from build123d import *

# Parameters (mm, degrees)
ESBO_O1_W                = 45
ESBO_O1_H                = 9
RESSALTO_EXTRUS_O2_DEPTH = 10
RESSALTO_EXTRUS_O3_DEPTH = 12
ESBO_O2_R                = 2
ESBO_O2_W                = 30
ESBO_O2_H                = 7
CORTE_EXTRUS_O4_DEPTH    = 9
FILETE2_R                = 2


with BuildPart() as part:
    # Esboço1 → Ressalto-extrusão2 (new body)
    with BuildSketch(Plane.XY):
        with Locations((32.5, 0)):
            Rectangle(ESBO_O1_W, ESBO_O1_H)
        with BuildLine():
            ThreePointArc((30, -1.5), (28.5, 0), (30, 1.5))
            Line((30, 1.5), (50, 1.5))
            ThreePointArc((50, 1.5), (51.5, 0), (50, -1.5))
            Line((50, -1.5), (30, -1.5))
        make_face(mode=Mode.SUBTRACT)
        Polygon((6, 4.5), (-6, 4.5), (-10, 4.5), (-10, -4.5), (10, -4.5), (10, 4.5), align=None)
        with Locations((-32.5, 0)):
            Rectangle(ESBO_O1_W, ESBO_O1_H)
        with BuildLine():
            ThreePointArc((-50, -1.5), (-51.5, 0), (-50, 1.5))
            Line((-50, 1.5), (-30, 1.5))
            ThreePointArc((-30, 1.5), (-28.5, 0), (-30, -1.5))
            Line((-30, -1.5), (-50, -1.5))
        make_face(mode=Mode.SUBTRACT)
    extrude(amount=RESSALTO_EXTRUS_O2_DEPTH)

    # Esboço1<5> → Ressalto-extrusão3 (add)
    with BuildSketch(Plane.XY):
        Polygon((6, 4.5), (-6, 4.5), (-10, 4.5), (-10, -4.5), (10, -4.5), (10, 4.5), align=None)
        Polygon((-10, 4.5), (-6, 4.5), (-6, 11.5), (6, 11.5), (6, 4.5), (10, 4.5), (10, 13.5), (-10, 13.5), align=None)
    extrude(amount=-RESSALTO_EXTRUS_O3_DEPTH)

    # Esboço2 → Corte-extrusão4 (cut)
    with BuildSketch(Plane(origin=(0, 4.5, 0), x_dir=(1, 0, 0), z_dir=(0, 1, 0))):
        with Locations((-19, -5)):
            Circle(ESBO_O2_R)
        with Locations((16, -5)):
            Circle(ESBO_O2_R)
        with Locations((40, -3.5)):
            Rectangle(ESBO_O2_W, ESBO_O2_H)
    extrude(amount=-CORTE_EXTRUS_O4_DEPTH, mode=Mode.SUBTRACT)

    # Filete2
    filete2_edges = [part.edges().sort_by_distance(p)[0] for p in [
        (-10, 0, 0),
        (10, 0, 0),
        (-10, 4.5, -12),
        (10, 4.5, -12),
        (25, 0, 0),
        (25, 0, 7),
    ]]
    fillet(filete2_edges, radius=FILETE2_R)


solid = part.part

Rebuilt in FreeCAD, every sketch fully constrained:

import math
import FreeCAD as App
import Part
import Sketcher
from FreeCAD import Vector
Q = App.Units.Quantity


def edges_at(feature, points):
    """Names of the edges that pass closest to the given points."""
    edges = feature.Shape.Edges
    near = lambda p: min(range(len(edges)), key=lambda i: edges[i].distToShape(Part.Vertex(*p))[0])
    return sorted({f"Edge{near(p) + 1}" for p in points})


def add_polygon(sketch, points):
    """Adds a closed chain of lines whose ends are joined by coincident constraints."""
    first, n = sketch.GeometryCount, len(points)
    for a, b in zip(points, points[1:] + points[:1]):
        sketch.addGeometry(Part.LineSegment(App.Vector(*a, 0), App.Vector(*b, 0)), False)
    for i in range(n):
        sketch.addConstraint(Sketcher.Constraint("Coincident", first + i, 2, first + (i + 1) % n, 1))

doc = App.newDocument("Part")
body = doc.addObject("PartDesign::Body", "Body")

# Sketch on XY plane
sketch1 = body.newObject("Sketcher::SketchObject", "Sketch")
sketch1.AttachmentSupport = (doc.getObject("XY_Plane"), [""])
sketch1.MapMode = "FlatFace"
add_polygon(sketch1, [(55, -4.5), (55, 4.5), (-55, 4.5), (-55, -4.5)])  # lines 0-3
sketch1.addGeometry(Part.LineSegment(Vector(-30, -1.5, 0), Vector(-50, -1.5, 0)), False)  # 4
sketch1.addGeometry(Part.ArcOfCircle(Part.Circle(Vector(-50, 0, 0), Vector(0, 0, 1), 1.5), math.radians(90), math.radians(270)), False)  # 5
sketch1.addGeometry(Part.LineSegment(Vector(-50, 1.5, 0), Vector(-30, 1.5, 0)), False)  # 6
sketch1.addGeometry(Part.ArcOfCircle(Part.Circle(Vector(-30, 0, 0), Vector(0, 0, 1), 1.5), math.radians(-90), math.radians(90)), False)  # 7
sketch1.addGeometry(Part.LineSegment(Vector(50, -1.5, 0), Vector(30, -1.5, 0)), False)  # 8
sketch1.addGeometry(Part.ArcOfCircle(Part.Circle(Vector(30, 0, 0), Vector(0, 0, 1), 1.5), math.radians(90), math.radians(270)), False)  # 9
sketch1.addGeometry(Part.LineSegment(Vector(30, 1.5, 0), Vector(50, 1.5, 0)), False)  # 10
sketch1.addGeometry(Part.ArcOfCircle(Part.Circle(Vector(50, 0, 0), Vector(0, 0, 1), 1.5), math.radians(-90), math.radians(90)), False)  # 11
sketch1.addConstraint([
    Sketcher.Constraint("Tangent", 4, 2, 5, 2),
    Sketcher.Constraint("Tangent", 5, 1, 6, 1),
    Sketcher.Constraint("Tangent", 6, 2, 7, 2),
    Sketcher.Constraint("Tangent", 7, 1, 4, 1),
    Sketcher.Constraint("Tangent", 8, 2, 9, 2),
    Sketcher.Constraint("Tangent", 9, 1, 10, 1),
    Sketcher.Constraint("Tangent", 10, 2, 11, 2),
    Sketcher.Constraint("Tangent", 11, 1, 8, 1),
    Sketcher.Constraint("Vertical", 0),
    Sketcher.Constraint("Horizontal", 1),
    Sketcher.Constraint("Vertical", 2),
    Sketcher.Constraint("Horizontal", 3),
    Sketcher.Constraint("Horizontal", 4),
    Sketcher.Constraint("Horizontal", 6),
    Sketcher.Constraint("Horizontal", 8),
    Sketcher.Constraint("Horizontal", 10),
    Sketcher.Constraint("Equal", 7, 9),
    Sketcher.Constraint("Symmetric", 7, 3, 9, 3, -1, 1),
    Sketcher.Constraint("Symmetric", 0, 2, 2, 2, -1, 1),
    Sketcher.Constraint("Symmetric", 5, 3, 11, 3, -2),
    Sketcher.Constraint("Radius", 5, Q("1.5 mm")),
    Sketcher.Constraint("DistanceX", 1, 2, 1, 1, Q("110 mm")),
    Sketcher.Constraint("DistanceX", 4, 2, 4, 1, Q("20 mm")),
    Sketcher.Constraint("DistanceY", 0, 1, 0, 2, Q("9 mm")),
    Sketcher.Constraint("DistanceX", 5, 3, -1, 1, Q("50 mm")),
])
pad1 = body.newObject("PartDesign::Pad", "Pad")
pad1.Profile = sketch1
pad1.Length = 10

# Sketch on XY plane
sketch2 = body.newObject("Sketcher::SketchObject", "Sketch001")
sketch2.AttachmentSupport = (doc.getObject("XY_Plane"), [""])
sketch2.MapMode = "FlatFace"
add_polygon(sketch2, [(-10, -4.5), (10, -4.5), (10, 13.5), (-10, 13.5)])  # lines 0-3
add_polygon(sketch2, [(6, 4.5), (-6, 4.5), (-6, 11.5), (6, 11.5)])  # lines 4-7
sketch2.addConstraint([
    Sketcher.Constraint("Horizontal", 0),
    Sketcher.Constraint("Vertical", 1),
    Sketcher.Constraint("Horizontal", 2),
    Sketcher.Constraint("Vertical", 3),
    Sketcher.Constraint("Horizontal", 4),
    Sketcher.Constraint("Vertical", 5),
    Sketcher.Constraint("Horizontal", 6),
    Sketcher.Constraint("Vertical", 7),
    Sketcher.Constraint("DistanceX", 0, 1, 0, 2, Q("20 mm")),
    Sketcher.Constraint("DistanceX", 4, 2, 4, 1, Q("12 mm")),
    Sketcher.Constraint("DistanceY", 1, 1, 1, 2, Q("18 mm")),
    Sketcher.Constraint("DistanceY", 5, 1, 5, 2, Q("7 mm")),
    Sketcher.Constraint("DistanceX", -1, 1, 0, 2, Q("10 mm")),
    Sketcher.Constraint("DistanceX", 4, 2, -1, 1, Q("6 mm")),
    Sketcher.Constraint("DistanceY", 4, 2, 2, 2, Q("9 mm")),
    Sketcher.Constraint("DistanceY", 0, 2, -1, 1, Q("4.5 mm")),
])
pad2 = body.newObject("PartDesign::Pad", "Pad001")
pad2.Profile = sketch2
pad2.Length = 12
pad2.Reversed = True

# Sketch on XZ plane
sketch3 = body.newObject("Sketcher::SketchObject", "Sketch002")
sketch3.AttachmentSupport = (doc.getObject("XZ_Plane"), [""])
sketch3.MapMode = "FlatFace"
sketch3.AttachmentOffset = App.Placement(Vector(0, 0, -4.5), App.Rotation())
sketch3.addGeometry(Part.Circle(Vector(-19, 5, 0), Vector(0, 0, 1), 2), False)  # 0
sketch3.addGeometry(Part.Circle(Vector(16, 5, 0), Vector(0, 0, 1), 2), False)  # 1
add_polygon(sketch3, [(25, 0), (25, 7), (55, 7), (55, 0)])  # lines 2-5
sketch3.addConstraint([
    Sketcher.Constraint("Vertical", 2),
    Sketcher.Constraint("Horizontal", 3),
    Sketcher.Constraint("Vertical", 4),
    Sketcher.Constraint("Horizontal", 5),
    Sketcher.Constraint("Equal", 0, 1),
    Sketcher.Constraint("PointOnObject", 4, 2, -1),
    Sketcher.Constraint("Horizontal", 0, 3, 1, 3),
    Sketcher.Constraint("Diameter", 0, Q("4 mm")),
    Sketcher.Constraint("DistanceX", 3, 1, 3, 2, Q("30 mm")),
    Sketcher.Constraint("DistanceY", 2, 1, 2, 2, Q("7 mm")),
    Sketcher.Constraint("DistanceX", 0, 3, -1, 1, Q("19 mm")),
    Sketcher.Constraint("DistanceY", -1, 1, 0, 3, Q("5 mm")),
    Sketcher.Constraint("DistanceX", -1, 1, 1, 3, Q("16 mm")),
    Sketcher.Constraint("DistanceX", -1, 1, 2, 2, Q("25 mm")),
])
pocket1 = body.newObject("PartDesign::Pocket", "Pocket")
pocket1.Profile = sketch3
pocket1.Length = 9
pocket1.Reversed = True
doc.recompute()

fillet = body.newObject("PartDesign::Fillet", "Fillet")
fillet.Base = (pocket1, edges_at(pocket1, [
    (-10, 0, 0),
    (10, 0, 0),
    (-10, 4.5, -12),
    (10, 4.5, -12),
    (25, 0, 0),
    (25, 0, 7),
]))
fillet.Radius = 2

doc.recompute()
